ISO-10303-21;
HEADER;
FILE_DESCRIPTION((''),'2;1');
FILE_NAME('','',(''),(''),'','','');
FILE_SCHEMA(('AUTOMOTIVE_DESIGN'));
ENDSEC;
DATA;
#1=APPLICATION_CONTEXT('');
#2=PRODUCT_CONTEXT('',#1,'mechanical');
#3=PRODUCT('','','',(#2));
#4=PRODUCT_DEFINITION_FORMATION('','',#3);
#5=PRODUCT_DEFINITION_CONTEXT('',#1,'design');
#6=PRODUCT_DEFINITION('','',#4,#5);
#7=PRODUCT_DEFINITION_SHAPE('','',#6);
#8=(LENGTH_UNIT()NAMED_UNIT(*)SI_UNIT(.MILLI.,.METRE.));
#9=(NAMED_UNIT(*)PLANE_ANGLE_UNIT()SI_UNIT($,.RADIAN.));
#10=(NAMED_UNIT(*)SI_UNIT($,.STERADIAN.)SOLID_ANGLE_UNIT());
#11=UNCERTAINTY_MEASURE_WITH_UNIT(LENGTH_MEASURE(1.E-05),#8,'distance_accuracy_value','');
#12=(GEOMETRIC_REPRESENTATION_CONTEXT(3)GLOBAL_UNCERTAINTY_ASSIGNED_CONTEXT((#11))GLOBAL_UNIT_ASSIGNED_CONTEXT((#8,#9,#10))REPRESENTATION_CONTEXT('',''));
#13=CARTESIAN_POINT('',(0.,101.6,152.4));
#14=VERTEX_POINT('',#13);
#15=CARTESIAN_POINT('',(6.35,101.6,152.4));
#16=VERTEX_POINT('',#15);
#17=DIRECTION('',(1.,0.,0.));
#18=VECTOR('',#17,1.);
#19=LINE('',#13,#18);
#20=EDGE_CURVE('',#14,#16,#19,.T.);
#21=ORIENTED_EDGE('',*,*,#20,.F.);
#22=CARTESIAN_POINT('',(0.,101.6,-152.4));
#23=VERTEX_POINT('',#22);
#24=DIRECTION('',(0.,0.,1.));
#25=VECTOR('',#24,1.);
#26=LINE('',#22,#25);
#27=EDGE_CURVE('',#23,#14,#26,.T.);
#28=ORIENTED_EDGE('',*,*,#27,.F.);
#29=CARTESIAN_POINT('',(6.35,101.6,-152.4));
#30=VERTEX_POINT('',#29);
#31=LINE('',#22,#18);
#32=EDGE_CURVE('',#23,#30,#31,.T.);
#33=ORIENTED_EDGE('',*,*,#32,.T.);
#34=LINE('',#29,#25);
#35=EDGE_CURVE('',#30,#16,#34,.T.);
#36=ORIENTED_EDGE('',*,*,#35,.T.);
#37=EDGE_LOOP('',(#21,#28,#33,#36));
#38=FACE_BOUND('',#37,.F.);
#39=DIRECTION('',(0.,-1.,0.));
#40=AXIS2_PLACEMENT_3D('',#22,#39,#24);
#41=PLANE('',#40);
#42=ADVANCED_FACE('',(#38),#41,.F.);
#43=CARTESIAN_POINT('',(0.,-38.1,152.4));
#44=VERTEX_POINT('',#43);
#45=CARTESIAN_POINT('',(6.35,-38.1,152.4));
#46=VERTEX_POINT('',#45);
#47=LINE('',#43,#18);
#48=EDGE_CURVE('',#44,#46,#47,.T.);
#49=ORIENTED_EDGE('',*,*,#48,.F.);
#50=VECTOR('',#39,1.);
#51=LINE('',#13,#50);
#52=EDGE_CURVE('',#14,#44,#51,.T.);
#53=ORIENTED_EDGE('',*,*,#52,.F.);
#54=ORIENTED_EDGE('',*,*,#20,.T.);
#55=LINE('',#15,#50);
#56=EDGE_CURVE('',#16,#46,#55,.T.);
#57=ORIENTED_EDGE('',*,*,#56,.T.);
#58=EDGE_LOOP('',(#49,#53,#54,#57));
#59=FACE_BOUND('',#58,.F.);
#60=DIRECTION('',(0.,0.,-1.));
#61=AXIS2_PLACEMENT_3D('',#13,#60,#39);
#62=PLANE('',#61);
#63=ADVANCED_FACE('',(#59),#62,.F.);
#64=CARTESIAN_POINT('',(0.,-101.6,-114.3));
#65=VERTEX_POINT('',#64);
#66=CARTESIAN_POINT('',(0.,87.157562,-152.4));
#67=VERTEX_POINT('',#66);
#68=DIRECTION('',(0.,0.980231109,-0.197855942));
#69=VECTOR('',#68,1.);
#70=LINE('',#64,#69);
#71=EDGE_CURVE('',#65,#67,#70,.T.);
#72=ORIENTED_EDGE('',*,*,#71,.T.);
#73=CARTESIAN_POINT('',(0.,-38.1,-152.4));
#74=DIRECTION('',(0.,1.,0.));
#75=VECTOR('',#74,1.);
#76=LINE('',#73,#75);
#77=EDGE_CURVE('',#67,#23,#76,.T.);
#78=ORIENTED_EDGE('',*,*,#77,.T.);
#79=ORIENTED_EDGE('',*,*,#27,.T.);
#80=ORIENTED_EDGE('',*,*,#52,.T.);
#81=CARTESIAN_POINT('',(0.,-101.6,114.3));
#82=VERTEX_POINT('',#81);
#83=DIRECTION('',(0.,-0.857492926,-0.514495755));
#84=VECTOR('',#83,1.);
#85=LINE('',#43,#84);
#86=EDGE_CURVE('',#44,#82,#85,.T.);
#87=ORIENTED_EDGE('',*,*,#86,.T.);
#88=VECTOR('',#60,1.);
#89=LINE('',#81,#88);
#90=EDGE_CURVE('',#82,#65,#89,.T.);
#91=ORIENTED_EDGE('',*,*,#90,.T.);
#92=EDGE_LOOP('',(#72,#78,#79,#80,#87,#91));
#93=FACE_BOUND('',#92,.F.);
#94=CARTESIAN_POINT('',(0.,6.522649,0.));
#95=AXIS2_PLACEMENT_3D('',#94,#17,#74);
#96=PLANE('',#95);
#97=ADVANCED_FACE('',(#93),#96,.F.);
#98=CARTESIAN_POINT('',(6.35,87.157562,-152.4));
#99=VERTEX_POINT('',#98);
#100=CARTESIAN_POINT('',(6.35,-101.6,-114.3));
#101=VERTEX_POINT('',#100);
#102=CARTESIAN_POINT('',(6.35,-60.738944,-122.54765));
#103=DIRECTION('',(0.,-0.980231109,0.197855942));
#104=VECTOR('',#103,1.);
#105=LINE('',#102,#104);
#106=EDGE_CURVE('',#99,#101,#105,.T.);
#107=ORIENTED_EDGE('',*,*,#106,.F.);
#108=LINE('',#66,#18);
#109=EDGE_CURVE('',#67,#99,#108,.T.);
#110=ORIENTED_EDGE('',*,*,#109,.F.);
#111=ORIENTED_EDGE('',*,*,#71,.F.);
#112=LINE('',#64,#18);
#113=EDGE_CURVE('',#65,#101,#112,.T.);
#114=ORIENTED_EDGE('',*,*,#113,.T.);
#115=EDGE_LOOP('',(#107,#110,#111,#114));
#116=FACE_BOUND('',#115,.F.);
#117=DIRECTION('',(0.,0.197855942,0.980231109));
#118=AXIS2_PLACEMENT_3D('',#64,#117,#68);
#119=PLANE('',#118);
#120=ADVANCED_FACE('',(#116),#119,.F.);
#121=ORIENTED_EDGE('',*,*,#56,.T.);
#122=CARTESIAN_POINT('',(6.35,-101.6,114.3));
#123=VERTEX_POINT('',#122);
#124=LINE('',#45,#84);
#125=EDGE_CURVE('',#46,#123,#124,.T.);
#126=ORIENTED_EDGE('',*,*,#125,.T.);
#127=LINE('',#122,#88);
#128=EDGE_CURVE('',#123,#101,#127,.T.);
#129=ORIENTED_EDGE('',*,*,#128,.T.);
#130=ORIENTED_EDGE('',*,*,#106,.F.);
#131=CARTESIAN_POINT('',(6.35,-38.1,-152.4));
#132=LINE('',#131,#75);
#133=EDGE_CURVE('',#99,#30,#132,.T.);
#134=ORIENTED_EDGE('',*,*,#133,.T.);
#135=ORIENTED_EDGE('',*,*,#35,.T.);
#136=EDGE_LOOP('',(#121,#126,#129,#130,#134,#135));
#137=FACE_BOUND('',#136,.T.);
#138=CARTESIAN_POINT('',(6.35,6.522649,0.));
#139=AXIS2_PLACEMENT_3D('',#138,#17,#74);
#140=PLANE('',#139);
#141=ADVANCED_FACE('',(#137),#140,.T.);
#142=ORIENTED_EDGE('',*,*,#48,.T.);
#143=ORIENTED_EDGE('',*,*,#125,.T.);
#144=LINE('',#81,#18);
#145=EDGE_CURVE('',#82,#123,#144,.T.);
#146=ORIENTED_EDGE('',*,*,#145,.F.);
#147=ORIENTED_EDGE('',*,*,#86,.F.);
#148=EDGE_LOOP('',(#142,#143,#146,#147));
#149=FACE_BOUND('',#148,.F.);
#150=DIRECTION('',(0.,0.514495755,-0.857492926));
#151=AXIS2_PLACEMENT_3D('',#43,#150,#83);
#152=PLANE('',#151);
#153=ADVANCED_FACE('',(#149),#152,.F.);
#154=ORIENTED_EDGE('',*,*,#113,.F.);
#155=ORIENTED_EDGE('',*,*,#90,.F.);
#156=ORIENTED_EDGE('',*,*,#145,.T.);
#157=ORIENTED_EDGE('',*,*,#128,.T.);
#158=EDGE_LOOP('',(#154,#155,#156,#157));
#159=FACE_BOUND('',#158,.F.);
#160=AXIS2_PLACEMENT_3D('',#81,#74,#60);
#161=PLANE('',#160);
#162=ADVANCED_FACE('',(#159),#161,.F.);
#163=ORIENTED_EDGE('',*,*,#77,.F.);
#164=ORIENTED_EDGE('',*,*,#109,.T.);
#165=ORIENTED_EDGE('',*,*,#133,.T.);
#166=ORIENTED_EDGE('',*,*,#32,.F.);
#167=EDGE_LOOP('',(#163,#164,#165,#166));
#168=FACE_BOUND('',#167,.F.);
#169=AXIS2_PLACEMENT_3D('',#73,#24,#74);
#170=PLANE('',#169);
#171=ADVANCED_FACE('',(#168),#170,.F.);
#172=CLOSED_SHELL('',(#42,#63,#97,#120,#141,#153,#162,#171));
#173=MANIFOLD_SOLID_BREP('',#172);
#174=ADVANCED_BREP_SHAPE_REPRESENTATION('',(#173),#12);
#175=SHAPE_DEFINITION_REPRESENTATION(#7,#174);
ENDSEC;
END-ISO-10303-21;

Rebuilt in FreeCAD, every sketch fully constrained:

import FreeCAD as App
import Part
import Sketcher
Q = App.Units.Quantity

doc = App.newDocument("Part")
body = doc.addObject("PartDesign::Body", "Body")

# Sketch on YZ plane
sketch1 = body.newObject("Sketcher::SketchObject", "Sketch")
sketch1.AttachmentSupport = (doc.getObject("YZ_Plane"), [""])
sketch1.MapMode = "FlatFace"
sketch1.addGeometry([
    Part.LineSegment(App.Vector(101.6, -152.4, 0), App.Vector(101.6, 152.4, 0)),  # 0
    Part.LineSegment(App.Vector(101.6, 152.4, 0), App.Vector(-38.1, 152.4, 0)),  # 1
    Part.LineSegment(App.Vector(-38.1, 152.4, 0), App.Vector(-101.6, 114.3, 0)),  # 2
    Part.LineSegment(App.Vector(-101.6, 114.3, 0), App.Vector(-101.6, -114.3, 0)),  # 3
    Part.LineSegment(App.Vector(-101.6, -114.3, 0), App.Vector(-38.1, -152.4, 0)),  # 4
    Part.LineSegment(App.Vector(-38.1, -152.4, 0), App.Vector(101.6, -152.4, 0)),  # 5
], False)
sketch1.addConstraint([
    Sketcher.Constraint("Coincident", 0, 2, 1, 1),
    Sketcher.Constraint("Coincident", 1, 2, 2, 1),
    Sketcher.Constraint("Coincident", 2, 2, 3, 1),
    Sketcher.Constraint("Coincident", 3, 2, 4, 1),
    Sketcher.Constraint("Coincident", 4, 2, 5, 1),
    Sketcher.Constraint("Coincident", 5, 2, 0, 1),
    Sketcher.Constraint("Vertical", 0),
    Sketcher.Constraint("Horizontal", 1),
    Sketcher.Constraint("Vertical", 3),
    Sketcher.Constraint("Horizontal", 5),
    Sketcher.Constraint("Symmetric", 1, 2, 4, 2, -1),
    Sketcher.Constraint("Equal", 2, 4),
    Sketcher.Constraint("DistanceY", 0, 1, 0, 2, Q("12 in")),
    Sketcher.Constraint("DistanceY", 3, 2, 3, 1, Q("9 in")),
    Sketcher.Constraint("DistanceX", 1, 2, 1, 1, Q("5.5 in")),
    Sketcher.Constraint("DistanceX", -1, 1, 0, 2, Q("4 in")),
    Sketcher.Constraint("DistanceX", 2, 2, -1, 1, Q("4 in")),
])
pad1 = body.newObject("PartDesign::Pad", "Pad")
pad1.Profile = sketch1
pad1.Length = Q("0.25 in")

# Sketch on YZ plane
sketch2 = body.newObject("Sketcher::SketchObject", "Sketch001")
sketch2.AttachmentSupport = (doc.getObject("YZ_Plane"), [""])
sketch2.MapMode = "FlatFace"
sketch2.addGeometry([
    Part.LineSegment(App.Vector(-38.1, -152.4, 0), App.Vector(-101.6, -114.3, 0)),
    Part.LineSegment(App.Vector(-101.6, -114.3, 0), App.Vector(87.157562, -152.4, 0)),
    Part.LineSegment(App.Vector(87.157562, -152.4, 0), App.Vector(-38.1, -152.4, 0)),
], False)
sketch2.addConstraint([
    Sketcher.Constraint("Coincident", 0, 2, 1, 1),
    Sketcher.Constraint("Coincident", 1, 2, 2, 1),
    Sketcher.Constraint("Coincident", 2, 2, 0, 1),
    Sketcher.Constraint("Horizontal", 2),
    Sketcher.Constraint("DistanceX", 0, 2, -1, 1, Q("4 in")),
    Sketcher.Constraint("DistanceY", 1, 2, -1, 1, Q("6 in")),
    Sketcher.Constraint("DistanceY", 0, 2, -1, 1, Q("4.5 in")),
    Sketcher.Constraint("DistanceX", 2, 2, -1, 1, Q("1.5 in")),
    Sketcher.Constraint("DistanceX", 2, 2, 2, 1, Q("4.9314001 in")),
])
pocket1 = body.newObject("PartDesign::Pocket", "Pocket")
pocket1.Profile = sketch2
pocket1.Length = Q("1 in")
pocket1.Reversed = True

doc.recompute()
